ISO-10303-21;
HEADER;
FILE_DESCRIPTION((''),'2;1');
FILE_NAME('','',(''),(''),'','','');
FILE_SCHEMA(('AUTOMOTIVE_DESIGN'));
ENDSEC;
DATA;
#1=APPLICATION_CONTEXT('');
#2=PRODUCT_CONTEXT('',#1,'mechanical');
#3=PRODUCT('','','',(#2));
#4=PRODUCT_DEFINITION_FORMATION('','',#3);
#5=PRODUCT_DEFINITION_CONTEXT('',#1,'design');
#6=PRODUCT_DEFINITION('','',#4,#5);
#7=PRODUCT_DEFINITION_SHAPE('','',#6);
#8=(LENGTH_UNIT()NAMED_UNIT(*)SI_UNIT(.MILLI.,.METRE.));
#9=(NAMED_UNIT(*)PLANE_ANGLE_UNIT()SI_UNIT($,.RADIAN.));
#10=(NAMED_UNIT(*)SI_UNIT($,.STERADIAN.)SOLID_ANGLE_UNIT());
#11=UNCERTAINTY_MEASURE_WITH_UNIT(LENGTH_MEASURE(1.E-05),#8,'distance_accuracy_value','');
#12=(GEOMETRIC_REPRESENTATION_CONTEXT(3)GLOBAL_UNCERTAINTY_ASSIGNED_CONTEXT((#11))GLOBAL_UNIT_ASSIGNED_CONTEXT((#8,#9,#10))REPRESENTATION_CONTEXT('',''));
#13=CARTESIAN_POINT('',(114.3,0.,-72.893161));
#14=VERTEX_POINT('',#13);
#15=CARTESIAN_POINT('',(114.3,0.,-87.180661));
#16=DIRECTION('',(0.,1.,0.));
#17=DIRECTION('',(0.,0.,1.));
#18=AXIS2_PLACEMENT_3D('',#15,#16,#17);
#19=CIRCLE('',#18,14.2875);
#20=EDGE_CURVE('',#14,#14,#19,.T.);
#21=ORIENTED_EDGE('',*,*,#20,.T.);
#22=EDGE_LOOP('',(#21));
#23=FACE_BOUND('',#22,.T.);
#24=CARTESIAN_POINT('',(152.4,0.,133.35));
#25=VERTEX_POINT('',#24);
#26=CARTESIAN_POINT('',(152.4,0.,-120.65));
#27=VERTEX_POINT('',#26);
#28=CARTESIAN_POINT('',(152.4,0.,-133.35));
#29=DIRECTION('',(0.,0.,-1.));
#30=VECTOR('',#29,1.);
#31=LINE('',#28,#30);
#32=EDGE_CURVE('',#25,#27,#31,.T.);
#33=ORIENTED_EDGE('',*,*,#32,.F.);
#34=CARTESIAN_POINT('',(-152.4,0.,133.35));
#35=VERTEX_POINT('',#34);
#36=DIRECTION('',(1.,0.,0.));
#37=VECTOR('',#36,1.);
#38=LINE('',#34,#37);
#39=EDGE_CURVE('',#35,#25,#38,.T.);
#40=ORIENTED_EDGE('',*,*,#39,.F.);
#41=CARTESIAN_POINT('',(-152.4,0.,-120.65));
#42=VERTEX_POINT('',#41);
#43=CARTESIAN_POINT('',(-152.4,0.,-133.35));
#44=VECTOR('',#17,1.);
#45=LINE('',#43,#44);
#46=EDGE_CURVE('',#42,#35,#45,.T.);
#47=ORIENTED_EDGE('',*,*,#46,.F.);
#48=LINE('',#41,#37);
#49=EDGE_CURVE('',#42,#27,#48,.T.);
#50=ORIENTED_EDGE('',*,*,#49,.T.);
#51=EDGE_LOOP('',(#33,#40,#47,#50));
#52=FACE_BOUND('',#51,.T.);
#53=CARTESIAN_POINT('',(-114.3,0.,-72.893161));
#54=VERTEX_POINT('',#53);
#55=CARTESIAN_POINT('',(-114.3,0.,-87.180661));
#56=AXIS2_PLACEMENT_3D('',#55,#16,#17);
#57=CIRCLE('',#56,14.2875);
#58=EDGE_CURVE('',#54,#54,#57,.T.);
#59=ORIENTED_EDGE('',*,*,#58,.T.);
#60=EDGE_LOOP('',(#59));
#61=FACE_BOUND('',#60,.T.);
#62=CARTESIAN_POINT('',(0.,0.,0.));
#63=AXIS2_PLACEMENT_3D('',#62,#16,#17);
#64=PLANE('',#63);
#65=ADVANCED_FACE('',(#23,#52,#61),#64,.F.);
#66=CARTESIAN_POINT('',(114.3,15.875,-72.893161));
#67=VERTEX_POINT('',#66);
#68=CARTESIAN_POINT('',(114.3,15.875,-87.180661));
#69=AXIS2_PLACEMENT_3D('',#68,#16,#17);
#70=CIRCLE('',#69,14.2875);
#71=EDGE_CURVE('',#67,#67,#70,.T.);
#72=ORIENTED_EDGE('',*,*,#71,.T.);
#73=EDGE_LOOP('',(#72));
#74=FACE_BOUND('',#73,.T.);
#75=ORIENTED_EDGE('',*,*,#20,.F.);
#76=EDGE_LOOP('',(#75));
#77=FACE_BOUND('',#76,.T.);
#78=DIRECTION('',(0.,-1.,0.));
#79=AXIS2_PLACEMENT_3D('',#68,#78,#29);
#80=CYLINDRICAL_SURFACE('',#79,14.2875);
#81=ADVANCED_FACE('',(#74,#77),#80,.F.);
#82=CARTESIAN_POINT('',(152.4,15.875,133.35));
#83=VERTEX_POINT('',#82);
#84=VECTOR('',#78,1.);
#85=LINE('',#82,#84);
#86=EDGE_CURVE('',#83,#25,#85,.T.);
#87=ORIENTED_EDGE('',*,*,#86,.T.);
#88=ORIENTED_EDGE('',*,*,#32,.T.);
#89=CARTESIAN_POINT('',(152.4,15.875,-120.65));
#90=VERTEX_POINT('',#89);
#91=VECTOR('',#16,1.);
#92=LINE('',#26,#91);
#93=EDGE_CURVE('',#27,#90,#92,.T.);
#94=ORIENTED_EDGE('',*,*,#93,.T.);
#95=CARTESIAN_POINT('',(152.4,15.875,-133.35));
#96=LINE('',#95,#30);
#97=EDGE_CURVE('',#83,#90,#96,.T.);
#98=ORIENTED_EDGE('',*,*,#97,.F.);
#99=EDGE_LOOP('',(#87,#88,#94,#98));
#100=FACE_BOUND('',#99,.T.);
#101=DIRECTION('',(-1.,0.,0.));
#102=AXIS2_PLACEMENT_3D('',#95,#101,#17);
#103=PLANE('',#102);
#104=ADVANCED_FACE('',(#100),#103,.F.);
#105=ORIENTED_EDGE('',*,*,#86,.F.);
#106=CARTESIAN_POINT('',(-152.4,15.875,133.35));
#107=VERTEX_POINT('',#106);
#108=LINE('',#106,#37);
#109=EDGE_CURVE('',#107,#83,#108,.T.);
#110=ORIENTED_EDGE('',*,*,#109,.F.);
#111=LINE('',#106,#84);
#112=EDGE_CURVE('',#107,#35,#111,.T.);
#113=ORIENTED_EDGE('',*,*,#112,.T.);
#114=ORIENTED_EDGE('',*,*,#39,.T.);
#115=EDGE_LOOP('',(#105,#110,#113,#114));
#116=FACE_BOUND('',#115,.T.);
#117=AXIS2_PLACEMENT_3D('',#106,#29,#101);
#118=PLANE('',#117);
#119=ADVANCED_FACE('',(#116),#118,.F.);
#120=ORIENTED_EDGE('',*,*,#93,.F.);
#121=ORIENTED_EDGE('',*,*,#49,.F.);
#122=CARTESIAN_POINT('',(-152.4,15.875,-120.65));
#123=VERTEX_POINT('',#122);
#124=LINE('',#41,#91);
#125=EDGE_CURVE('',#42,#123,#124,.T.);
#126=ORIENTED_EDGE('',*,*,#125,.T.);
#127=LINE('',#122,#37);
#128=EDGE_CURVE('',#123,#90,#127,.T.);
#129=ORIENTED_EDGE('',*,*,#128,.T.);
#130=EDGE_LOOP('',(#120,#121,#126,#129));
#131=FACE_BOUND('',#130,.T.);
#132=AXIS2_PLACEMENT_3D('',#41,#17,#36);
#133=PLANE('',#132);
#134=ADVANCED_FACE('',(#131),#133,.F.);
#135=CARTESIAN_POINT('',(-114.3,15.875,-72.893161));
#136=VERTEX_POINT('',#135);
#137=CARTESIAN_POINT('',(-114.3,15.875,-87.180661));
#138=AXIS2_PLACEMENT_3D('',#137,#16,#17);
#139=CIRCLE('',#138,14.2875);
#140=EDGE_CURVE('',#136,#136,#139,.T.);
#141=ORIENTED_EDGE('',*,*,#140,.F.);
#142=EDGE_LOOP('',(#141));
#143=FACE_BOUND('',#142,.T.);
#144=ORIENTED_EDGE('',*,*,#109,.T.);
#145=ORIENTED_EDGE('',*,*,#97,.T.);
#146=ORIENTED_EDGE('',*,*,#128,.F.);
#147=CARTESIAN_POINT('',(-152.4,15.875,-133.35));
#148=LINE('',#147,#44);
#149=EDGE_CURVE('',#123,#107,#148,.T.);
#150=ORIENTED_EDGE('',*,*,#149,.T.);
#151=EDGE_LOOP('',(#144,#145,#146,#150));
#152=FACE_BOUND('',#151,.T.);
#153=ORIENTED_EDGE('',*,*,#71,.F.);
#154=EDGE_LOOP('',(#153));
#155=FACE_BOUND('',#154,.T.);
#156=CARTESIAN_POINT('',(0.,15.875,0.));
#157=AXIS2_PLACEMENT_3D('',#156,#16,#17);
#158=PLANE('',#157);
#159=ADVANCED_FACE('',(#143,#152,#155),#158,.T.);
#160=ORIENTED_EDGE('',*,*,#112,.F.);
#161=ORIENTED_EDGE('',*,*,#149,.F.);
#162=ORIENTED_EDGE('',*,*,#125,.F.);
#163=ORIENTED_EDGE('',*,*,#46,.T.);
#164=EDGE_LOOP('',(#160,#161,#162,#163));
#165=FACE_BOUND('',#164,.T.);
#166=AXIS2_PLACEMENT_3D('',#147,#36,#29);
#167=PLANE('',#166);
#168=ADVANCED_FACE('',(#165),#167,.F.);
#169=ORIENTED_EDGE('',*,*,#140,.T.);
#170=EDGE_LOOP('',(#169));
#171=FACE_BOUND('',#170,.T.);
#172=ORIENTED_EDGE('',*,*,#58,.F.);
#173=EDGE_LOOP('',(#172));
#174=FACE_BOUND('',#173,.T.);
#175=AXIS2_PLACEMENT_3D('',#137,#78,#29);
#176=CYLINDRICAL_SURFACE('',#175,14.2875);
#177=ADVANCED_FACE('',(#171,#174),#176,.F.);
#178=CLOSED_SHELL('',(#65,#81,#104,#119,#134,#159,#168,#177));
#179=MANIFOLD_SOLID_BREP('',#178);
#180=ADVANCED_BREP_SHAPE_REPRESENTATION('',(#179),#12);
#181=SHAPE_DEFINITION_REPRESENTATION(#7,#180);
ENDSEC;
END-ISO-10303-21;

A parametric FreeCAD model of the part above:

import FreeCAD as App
import Part
import Sketcher

V = App.Vector
Q = App.Units.Quantity


def add_polygon(sketch, points):
    """Adds a closed chain of lines whose ends are joined by coincident constraints."""
    first, n = sketch.GeometryCount, len(points)
    for a, b in zip(points, points[1:] + points[:1]):
        sketch.addGeometry(Part.LineSegment(App.Vector(*a, 0), App.Vector(*b, 0)), False)
    for i in range(n):
        sketch.addConstraint(Sketcher.Constraint("Coincident", first + i, 2, first + (i + 1) % n, 1))

doc = App.newDocument("Part")
body = doc.addObject("PartDesign::Body", "Body")

# Sketch on XZ plane
sketch1 = body.newObject("Sketcher::SketchObject", "Sketch")
sketch1.AttachmentSupport = (doc.getObject("XZ_Plane"), [""])
sketch1.MapMode = "FlatFace"
add_polygon(sketch1, [(-152, -133), (-152, 133), (152, 133), (152, -133)])  # lines 0-3
sketch1.addGeometry(Part.Circle(V(-114, -87, 0), V(0, 0, 1), 14), False)  # 4
sketch1.addGeometry(Part.Circle(V(114, -87, 0), V(0, 0, 1), 14), False)  # 5
sketch1.addConstraint(Sketcher.Constraint("Vertical", 0))
sketch1.addConstraint(Sketcher.Constraint("Horizontal", 1))
sketch1.addConstraint(Sketcher.Constraint("Vertical", 2))
sketch1.addConstraint(Sketcher.Constraint("Horizontal", 3))
sketch1.addConstraint(Sketcher.Constraint("Equal", 4, 5))
sketch1.addConstraint(Sketcher.Constraint("Symmetric", 0, 2, 2, 2, -1, 1))
sketch1.addConstraint(Sketcher.Constraint("Symmetric", 4, 3, 5, 3, -2))
sketch1.addConstraint(Sketcher.Constraint("DistanceX", 1, 1, 1, 2, Q("12 in")))
sketch1.addConstraint(Sketcher.Constraint("Diameter", 4, Q("1.125 in")))
sketch1.addConstraint(Sketcher.Constraint("DistanceY", 0, 1, 0, 2, Q("10.5 in")))
sketch1.addConstraint(Sketcher.Constraint("DistanceX", 4, 3, 5, 3, Q("9 in")))
sketch1.addConstraint(Sketcher.Constraint("DistanceY", 4, 3, -1, 1, 87.180661))
pad1 = body.newObject("PartDesign::Pad", "Pad")
pad1.Profile = sketch1
pad1.Length = Q("0.625 in")
pad1.Reversed = True

# Sketch on XZ plane
sketch2 = body.newObject("Sketcher::SketchObject", "Sketch001")
sketch2.AttachmentSupport = (doc.getObject("XZ_Plane"), [""])
sketch2.MapMode = "FlatFace"
sketch2.AttachmentOffset = App.Placement(V(0, 0, -0.625 * 25.4), App.Rotation())
add_polygon(sketch2, [(-152, -133), (-152, -121), (152, -121), (152, -133)])  # lines 0-3
sketch2.addConstraint(Sketcher.Constraint("Vertical", 0))
sketch2.addConstraint(Sketcher.Constraint("Horizontal", 1))
sketch2.addConstraint(Sketcher.Constraint("Vertical", 2))
sketch2.addConstraint(Sketcher.Constraint("Horizontal", 3))
sketch2.addConstraint(Sketcher.Constraint("DistanceX", 1, 1, 1, 2, Q("12 in")))
sketch2.addConstraint(Sketcher.Constraint("DistanceY", 0, 1, 0, 2, Q("0.5 in")))
sketch2.addConstraint(Sketcher.Constraint("DistanceX", 0, 2, -1, 1, Q("6 in")))
sketch2.addConstraint(Sketcher.Constraint("DistanceY", 0, 2, -1, 1, Q("4.75 in")))
pocket1 = body.newObject("PartDesign::Pocket", "Pocket")
pocket1.Profile = sketch2
pocket1.Type = "ThroughAll"
pocket1.Reversed = True

doc.recompute()
